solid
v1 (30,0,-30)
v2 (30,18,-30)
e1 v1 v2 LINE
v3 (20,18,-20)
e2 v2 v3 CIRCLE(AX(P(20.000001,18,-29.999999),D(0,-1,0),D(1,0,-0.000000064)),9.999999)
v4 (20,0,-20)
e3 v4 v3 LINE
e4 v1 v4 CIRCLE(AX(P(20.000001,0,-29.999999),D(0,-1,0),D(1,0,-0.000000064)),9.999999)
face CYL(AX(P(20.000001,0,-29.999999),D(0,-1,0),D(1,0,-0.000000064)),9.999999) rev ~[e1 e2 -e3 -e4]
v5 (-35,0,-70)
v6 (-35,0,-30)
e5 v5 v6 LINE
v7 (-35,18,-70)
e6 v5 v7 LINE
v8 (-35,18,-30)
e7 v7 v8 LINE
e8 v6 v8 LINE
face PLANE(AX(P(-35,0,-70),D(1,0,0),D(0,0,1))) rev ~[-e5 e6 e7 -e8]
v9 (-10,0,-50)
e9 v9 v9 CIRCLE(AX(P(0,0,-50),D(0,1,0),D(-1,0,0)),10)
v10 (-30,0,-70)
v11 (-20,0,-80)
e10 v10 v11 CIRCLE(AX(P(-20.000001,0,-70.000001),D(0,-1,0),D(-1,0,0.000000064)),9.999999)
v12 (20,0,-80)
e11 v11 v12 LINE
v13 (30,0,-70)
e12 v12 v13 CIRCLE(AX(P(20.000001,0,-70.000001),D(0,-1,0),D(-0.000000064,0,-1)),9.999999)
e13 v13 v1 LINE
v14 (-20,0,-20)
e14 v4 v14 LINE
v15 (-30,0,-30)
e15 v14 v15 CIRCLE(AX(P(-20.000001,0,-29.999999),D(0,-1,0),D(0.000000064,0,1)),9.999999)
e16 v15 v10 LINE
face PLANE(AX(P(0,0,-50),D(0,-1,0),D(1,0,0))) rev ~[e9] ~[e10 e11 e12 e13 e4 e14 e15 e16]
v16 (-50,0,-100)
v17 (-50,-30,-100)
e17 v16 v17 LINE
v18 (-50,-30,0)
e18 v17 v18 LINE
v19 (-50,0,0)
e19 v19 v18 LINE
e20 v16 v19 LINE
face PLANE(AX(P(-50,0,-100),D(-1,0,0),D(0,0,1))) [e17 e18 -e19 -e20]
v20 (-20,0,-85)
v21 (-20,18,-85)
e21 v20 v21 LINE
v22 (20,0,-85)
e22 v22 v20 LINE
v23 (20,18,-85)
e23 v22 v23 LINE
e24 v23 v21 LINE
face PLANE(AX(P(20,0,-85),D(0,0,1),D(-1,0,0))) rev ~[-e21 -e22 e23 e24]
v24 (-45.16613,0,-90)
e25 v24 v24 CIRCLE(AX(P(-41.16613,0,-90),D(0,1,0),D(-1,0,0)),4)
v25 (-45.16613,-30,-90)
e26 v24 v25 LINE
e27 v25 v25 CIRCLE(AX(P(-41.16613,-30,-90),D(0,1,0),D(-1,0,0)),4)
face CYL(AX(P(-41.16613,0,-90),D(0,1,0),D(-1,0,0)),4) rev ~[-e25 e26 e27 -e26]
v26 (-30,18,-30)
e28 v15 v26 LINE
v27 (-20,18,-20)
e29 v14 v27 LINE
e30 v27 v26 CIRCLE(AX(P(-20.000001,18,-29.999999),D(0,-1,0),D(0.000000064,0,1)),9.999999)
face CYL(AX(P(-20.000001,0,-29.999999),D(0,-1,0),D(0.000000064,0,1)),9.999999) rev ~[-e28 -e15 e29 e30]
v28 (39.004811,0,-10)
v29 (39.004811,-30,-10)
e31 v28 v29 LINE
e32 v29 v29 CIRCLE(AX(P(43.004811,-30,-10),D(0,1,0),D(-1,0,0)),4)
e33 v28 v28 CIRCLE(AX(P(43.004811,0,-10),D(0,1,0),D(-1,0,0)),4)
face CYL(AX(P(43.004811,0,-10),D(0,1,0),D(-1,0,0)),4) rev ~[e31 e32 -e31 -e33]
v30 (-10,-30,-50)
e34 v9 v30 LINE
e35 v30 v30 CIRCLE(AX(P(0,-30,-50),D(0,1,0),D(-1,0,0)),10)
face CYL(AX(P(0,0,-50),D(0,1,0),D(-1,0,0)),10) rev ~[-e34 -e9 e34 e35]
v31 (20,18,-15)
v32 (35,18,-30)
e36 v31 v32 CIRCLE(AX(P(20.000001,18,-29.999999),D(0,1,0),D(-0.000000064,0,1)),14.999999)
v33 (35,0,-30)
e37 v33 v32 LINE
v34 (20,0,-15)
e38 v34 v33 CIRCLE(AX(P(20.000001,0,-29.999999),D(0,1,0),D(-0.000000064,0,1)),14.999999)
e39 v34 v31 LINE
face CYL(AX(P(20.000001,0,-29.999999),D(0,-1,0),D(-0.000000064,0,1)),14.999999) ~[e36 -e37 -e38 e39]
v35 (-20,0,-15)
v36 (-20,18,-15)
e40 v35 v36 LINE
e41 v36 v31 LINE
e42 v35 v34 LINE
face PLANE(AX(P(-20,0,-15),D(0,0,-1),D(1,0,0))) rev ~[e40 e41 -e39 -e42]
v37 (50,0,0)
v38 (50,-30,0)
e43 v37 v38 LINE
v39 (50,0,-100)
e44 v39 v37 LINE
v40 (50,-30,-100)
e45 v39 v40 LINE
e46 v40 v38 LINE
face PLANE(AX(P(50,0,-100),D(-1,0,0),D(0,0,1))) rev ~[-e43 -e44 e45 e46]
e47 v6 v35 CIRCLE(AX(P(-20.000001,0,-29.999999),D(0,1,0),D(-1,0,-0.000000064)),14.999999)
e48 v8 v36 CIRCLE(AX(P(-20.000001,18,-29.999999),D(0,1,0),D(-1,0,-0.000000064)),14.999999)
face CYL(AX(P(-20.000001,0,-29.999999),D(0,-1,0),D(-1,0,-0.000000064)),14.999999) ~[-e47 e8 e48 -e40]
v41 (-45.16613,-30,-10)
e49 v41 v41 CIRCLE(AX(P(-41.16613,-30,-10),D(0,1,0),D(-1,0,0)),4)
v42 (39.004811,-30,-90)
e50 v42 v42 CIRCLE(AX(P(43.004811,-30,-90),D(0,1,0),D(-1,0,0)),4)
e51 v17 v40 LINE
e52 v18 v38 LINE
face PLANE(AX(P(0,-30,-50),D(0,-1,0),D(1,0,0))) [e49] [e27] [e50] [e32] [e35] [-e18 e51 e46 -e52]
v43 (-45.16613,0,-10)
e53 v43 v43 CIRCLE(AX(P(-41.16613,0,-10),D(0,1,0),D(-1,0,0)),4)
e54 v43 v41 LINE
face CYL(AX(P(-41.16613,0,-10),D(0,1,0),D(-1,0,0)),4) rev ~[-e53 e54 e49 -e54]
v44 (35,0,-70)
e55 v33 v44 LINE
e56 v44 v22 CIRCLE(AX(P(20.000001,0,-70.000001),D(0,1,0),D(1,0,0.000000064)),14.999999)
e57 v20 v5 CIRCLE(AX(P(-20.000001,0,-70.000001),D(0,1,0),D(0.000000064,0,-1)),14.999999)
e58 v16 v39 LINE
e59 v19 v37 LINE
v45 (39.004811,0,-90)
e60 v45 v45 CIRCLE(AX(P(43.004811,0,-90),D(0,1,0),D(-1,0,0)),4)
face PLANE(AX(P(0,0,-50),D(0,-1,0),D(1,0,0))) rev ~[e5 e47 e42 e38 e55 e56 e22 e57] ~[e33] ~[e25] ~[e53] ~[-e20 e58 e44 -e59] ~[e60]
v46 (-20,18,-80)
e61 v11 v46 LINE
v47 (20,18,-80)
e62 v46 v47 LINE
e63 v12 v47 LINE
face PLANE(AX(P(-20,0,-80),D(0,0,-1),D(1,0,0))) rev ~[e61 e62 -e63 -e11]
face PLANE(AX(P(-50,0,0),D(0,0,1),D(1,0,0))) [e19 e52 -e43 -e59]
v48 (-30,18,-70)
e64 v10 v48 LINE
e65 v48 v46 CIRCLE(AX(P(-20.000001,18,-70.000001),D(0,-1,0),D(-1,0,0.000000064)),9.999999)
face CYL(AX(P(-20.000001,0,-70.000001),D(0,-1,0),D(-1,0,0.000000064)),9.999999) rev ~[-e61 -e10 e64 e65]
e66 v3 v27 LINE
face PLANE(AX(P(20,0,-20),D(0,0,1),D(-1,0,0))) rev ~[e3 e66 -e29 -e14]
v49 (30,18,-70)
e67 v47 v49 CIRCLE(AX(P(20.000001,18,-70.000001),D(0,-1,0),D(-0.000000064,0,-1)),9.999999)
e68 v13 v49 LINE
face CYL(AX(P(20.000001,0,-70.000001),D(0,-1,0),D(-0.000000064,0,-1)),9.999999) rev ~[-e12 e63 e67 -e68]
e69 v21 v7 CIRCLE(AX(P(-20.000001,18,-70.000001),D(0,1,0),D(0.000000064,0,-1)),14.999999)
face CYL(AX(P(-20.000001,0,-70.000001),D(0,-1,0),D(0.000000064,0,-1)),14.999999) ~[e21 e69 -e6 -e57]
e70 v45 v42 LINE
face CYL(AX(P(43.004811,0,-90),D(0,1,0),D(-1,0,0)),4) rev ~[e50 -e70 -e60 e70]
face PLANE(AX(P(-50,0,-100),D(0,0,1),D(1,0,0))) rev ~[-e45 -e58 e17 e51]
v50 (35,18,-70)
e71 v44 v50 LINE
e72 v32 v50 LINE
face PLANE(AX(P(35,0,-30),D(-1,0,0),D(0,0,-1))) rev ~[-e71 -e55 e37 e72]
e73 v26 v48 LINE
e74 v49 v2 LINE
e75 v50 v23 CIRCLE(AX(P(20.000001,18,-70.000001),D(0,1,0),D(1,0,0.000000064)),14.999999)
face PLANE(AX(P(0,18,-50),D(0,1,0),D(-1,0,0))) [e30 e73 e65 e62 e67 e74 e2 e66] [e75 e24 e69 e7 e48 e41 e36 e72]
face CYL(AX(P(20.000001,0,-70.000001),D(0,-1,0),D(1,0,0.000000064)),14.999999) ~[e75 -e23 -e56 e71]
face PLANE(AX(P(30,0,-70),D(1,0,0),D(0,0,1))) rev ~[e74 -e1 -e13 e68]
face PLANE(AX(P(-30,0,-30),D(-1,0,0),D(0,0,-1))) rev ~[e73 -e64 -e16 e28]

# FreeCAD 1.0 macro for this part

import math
import FreeCAD as App
import Part
import Sketcher
from FreeCAD import Vector
Q = App.Units.Quantity

doc = App.newDocument("Part")
body = doc.addObject("PartDesign::Body", "Body")

# Sketch on XZ plane
sketch1 = body.newObject("Sketcher::SketchObject", "Sketch")
sketch1.AttachmentSupport = (doc.getObject("XZ_Plane"), [""])
sketch1.MapMode = "FlatFace"
sketch1.addGeometry(Part.LineSegment(Vector(-50, 0, 0), Vector(-50, -100, 0)), False)
sketch1.addGeometry(Part.LineSegment(Vector(-50, -100, 0), Vector(50, -100, 0)), False)
sketch1.addGeometry(Part.LineSegment(Vector(50, -100, 0), Vector(50, 0, 0)), False)
sketch1.addGeometry(Part.LineSegment(Vector(50, 0, 0), Vector(-50, 0, 0)), False)
sketch1.addConstraint(Sketcher.Constraint("Coincident", 0, 2, 1, 1))
sketch1.addConstraint(Sketcher.Constraint("Coincident", 1, 2, 2, 1))
sketch1.addConstraint(Sketcher.Constraint("Coincident", 2, 2, 3, 1))
sketch1.addConstraint(Sketcher.Constraint("Coincident", 3, 2, 0, 1))
sketch1.addConstraint(Sketcher.Constraint("Vertical", 0))
sketch1.addConstraint(Sketcher.Constraint("Horizontal", 1))
sketch1.addConstraint(Sketcher.Constraint("Vertical", 2))
sketch1.addConstraint(Sketcher.Constraint("Horizontal", 3))
sketch1.addConstraint(Sketcher.Constraint("Symmetric", 2, 2, 3, 2, -1, 1))
sketch1.addConstraint(Sketcher.Constraint("Equal", 3, 0))
sketch1.addConstraint(Sketcher.Constraint("DistanceX", 1, 1, 1, 2, Q("100 mm")))
pad1 = body.newObject("PartDesign::Pad", "Pad")
pad1.Profile = sketch1
pad1.Length = 30

# Sketch on XZ plane
sketch2 = body.newObject("Sketcher::SketchObject", "Sketch001")
sketch2.AttachmentSupport = (doc.getObject("XZ_Plane"), [""])
sketch2.MapMode = "FlatFace"
sketch2.addGeometry(Part.ArcOfCircle(Part.Circle(Vector(20, -70, 0), Vector(0, 0, 1), 15), math.radians(-90), math.radians(0)), False)
sketch2.addGeometry(Part.LineSegment(Vector(20, -85, 0), Vector(-20, -85, 0)), False)
sketch2.addGeometry(Part.ArcOfCircle(Part.Circle(Vector(-20, -70, 0), Vector(0, 0, 1), 15), math.radians(180), math.radians(270)), False)
sketch2.addGeometry(Part.LineSegment(Vector(-35, -70, 0), Vector(-35, -30, 0)), False)
sketch2.addGeometry(Part.ArcOfCircle(Part.Circle(Vector(-20, -30, 0), Vector(0, 0, 1), 15), math.radians(90), math.radians(180)), False)
sketch2.addGeometry(Part.LineSegment(Vector(-20, -15, 0), Vector(20, -15, 0)), False)
sketch2.addGeometry(Part.ArcOfCircle(Part.Circle(Vector(20, -30, 0), Vector(0, 0, 1), 15), math.radians(0), math.radians(90)), False)
sketch2.addGeometry(Part.LineSegment(Vector(35, -30, 0), Vector(35, -70, 0)), False)
sketch2.addGeometry(Part.ArcOfCircle(Part.Circle(Vector(-20, -70, 0), Vector(0, 0, 1), 10), math.radians(180), math.radians(270)), False)
sketch2.addGeometry(Part.LineSegment(Vector(-20, -80, 0), Vector(20, -80, 0)), False)
sketch2.addGeometry(Part.ArcOfCircle(Part.Circle(Vector(20, -70, 0), Vector(0, 0, 1), 10), math.radians(-90), math.radians(0)), False)
sketch2.addGeometry(Part.LineSegment(Vector(30, -70, 0), Vector(30, -30, 0)), False)
sketch2.addGeometry(Part.ArcOfCircle(Part.Circle(Vector(20, -30, 0), Vector(0, 0, 1), 10), math.radians(0), math.radians(90)), False)
sketch2.addGeometry(Part.LineSegment(Vector(20, -20, 0), Vector(-20, -20, 0)), False)
sketch2.addGeometry(Part.ArcOfCircle(Part.Circle(Vector(-20, -30, 0), Vector(0, 0, 1), 10), math.radians(90), math.radians(180)), False)
sketch2.addGeometry(Part.LineSegment(Vector(-30, -30, 0), Vector(-30, -70, 0)), False)
sketch2.addConstraint(Sketcher.Constraint("Tangent", 0, 1, 1, 1))
sketch2.addConstraint(Sketcher.Constraint("Tangent", 1, 2, 2, 2))
sketch2.addConstraint(Sketcher.Constraint("Tangent", 2, 1, 3, 1))
sketch2.addConstraint(Sketcher.Constraint("Tangent", 3, 2, 4, 2))
sketch2.addConstraint(Sketcher.Constraint("Tangent", 4, 1, 5, 1))
sketch2.addConstraint(Sketcher.Constraint("Tangent", 5, 2, 6, 2))
sketch2.addConstraint(Sketcher.Constraint("Tangent", 6, 1, 7, 1))
sketch2.addConstraint(Sketcher.Constraint("Tangent", 7, 2, 0, 2))
sketch2.addConstraint(Sketcher.Constraint("Tangent", 8, 2, 9, 1))
sketch2.addConstraint(Sketcher.Constraint("Tangent", 9, 2, 10, 1))
sketch2.addConstraint(Sketcher.Constraint("Tangent", 10, 2, 11, 1))
sketch2.addConstraint(Sketcher.Constraint("Tangent", 11, 2, 12, 1))
sketch2.addConstraint(Sketcher.Constraint("Tangent", 12, 2, 13, 1))
sketch2.addConstraint(Sketcher.Constraint("Tangent", 13, 2, 14, 1))
sketch2.addConstraint(Sketcher.Constraint("Tangent", 14, 2, 15, 1))
sketch2.addConstraint(Sketcher.Constraint("Tangent", 15, 2, 8, 1))
sketch2.addConstraint(Sketcher.Constraint("Horizontal", 1))
sketch2.addConstraint(Sketcher.Constraint("Vertical", 3))
sketch2.addConstraint(Sketcher.Constraint("Horizontal", 5))
sketch2.addConstraint(Sketcher.Constraint("Vertical", 7))
sketch2.addConstraint(Sketcher.Constraint("Horizontal", 9))
sketch2.addConstraint(Sketcher.Constraint("Vertical", 11))
sketch2.addConstraint(Sketcher.Constraint("Horizontal", 13))
sketch2.addConstraint(Sketcher.Constraint("Vertical", 15))
sketch2.addConstraint(Sketcher.Constraint("Coincident", 8, 3, 2, 3))
sketch2.addConstraint(Sketcher.Constraint("Coincident", 10, 3, 0, 3))
sketch2.addConstraint(Sketcher.Constraint("Coincident", 12, 3, 6, 3))
sketch2.addConstraint(Sketcher.Constraint("Equal", 0, 2))
sketch2.addConstraint(Sketcher.Constraint("Equal", 2, 4))
sketch2.addConstraint(Sketcher.Constraint("Equal", 4, 6))
sketch2.addConstraint(Sketcher.Constraint("Equal", 12, 14))
sketch2.addConstraint(Sketcher.Constraint("Equal", 13, 3))
sketch2.addConstraint(Sketcher.Constraint("Radius", 0, Q("14.999999 mm")))
sketch2.addConstraint(Sketcher.Constraint("Radius", 8, Q("9.999999 mm")))
sketch2.addConstraint(Sketcher.Constraint("DistanceX", 1, 2, 1, 1, Q("40 mm")))
sketch2.addConstraint(Sketcher.Constraint("DistanceX", -1, 1, 0, 3, Q("20.000001 mm")))
sketch2.addConstraint(Sketcher.Constraint("DistanceY", 0, 3, -1, 1, Q("70.000001 mm")))
pad2 = body.newObject("PartDesign::Pad", "Pad001")
pad2.Profile = sketch2
pad2.Length = 18
pad2.Reversed = True

# Sketch on XZ plane
sketch3 = body.newObject("Sketcher::SketchObject", "Sketch002")
sketch3.AttachmentSupport = (doc.getObject("XZ_Plane"), [""])
sketch3.MapMode = "FlatFace"
sketch3.addGeometry(Part.Circle(Vector(0, -50, 0), Vector(0, 0, 1), 10), False)
sketch3.addGeometry(Part.Circle(Vector(-41.2, -90, 0), Vector(0, 0, 1), 4), False)
sketch3.addGeometry(Part.Circle(Vector(-41.2, -10, 0), Vector(0, 0, 1), 4), False)
sketch3.addGeometry(Part.Circle(Vector(43, -90, 0), Vector(0, 0, 1), 4), False)
sketch3.addGeometry(Part.Circle(Vector(43, -10, 0), Vector(0, 0, 1), 4), False)
sketch3.addConstraint(Sketcher.Constraint("Equal", 1, 2))
sketch3.addConstraint(Sketcher.Constraint("Equal", 2, 3))
sketch3.addConstraint(Sketcher.Constraint("Equal", 3, 4))
sketch3.addConstraint(Sketcher.Constraint("PointOnObject", 0, 3, -2))
sketch3.addConstraint(Sketcher.Constraint("Horizontal", 1, 3, 3, 3))
sketch3.addConstraint(Sketcher.Constraint("Horizontal", 2, 3, 4, 3))
sketch3.addConstraint(Sketcher.Constraint("Vertical", 1, 3, 2, 3))
sketch3.addConstraint(Sketcher.Constraint("Vertical", 3, 3, 4, 3))
sketch3.addConstraint(Sketcher.Constraint("Diameter", 0, Q("20 mm")))
sketch3.addConstraint(Sketcher.Constraint("Diameter", 1, Q("8 mm")))
sketch3.addConstraint(Sketcher.Constraint("DistanceY", 0, 3, -1, 1, Q("50 mm")))
sketch3.addConstraint(Sketcher.Constraint("DistanceY", 1, 3, -1, 1, Q("90 mm")))
sketch3.addConstraint(Sketcher.Constraint("DistanceY", 2, 3, -1, 1, Q("10 mm")))
sketch3.addConstraint(Sketcher.Constraint("DistanceX", 1, 3, -1, 1, Q("41.16613 mm")))
sketch3.addConstraint(Sketcher.Constraint("DistanceX", -1, 1, 3, 3, Q("43.004811 mm")))
pocket1 = body.newObject("PartDesign::Pocket", "Pocket")
pocket1.Profile = sketch3
pocket1.Type = "ThroughAll"
pocket1.Reversed = True

doc.recompute()
